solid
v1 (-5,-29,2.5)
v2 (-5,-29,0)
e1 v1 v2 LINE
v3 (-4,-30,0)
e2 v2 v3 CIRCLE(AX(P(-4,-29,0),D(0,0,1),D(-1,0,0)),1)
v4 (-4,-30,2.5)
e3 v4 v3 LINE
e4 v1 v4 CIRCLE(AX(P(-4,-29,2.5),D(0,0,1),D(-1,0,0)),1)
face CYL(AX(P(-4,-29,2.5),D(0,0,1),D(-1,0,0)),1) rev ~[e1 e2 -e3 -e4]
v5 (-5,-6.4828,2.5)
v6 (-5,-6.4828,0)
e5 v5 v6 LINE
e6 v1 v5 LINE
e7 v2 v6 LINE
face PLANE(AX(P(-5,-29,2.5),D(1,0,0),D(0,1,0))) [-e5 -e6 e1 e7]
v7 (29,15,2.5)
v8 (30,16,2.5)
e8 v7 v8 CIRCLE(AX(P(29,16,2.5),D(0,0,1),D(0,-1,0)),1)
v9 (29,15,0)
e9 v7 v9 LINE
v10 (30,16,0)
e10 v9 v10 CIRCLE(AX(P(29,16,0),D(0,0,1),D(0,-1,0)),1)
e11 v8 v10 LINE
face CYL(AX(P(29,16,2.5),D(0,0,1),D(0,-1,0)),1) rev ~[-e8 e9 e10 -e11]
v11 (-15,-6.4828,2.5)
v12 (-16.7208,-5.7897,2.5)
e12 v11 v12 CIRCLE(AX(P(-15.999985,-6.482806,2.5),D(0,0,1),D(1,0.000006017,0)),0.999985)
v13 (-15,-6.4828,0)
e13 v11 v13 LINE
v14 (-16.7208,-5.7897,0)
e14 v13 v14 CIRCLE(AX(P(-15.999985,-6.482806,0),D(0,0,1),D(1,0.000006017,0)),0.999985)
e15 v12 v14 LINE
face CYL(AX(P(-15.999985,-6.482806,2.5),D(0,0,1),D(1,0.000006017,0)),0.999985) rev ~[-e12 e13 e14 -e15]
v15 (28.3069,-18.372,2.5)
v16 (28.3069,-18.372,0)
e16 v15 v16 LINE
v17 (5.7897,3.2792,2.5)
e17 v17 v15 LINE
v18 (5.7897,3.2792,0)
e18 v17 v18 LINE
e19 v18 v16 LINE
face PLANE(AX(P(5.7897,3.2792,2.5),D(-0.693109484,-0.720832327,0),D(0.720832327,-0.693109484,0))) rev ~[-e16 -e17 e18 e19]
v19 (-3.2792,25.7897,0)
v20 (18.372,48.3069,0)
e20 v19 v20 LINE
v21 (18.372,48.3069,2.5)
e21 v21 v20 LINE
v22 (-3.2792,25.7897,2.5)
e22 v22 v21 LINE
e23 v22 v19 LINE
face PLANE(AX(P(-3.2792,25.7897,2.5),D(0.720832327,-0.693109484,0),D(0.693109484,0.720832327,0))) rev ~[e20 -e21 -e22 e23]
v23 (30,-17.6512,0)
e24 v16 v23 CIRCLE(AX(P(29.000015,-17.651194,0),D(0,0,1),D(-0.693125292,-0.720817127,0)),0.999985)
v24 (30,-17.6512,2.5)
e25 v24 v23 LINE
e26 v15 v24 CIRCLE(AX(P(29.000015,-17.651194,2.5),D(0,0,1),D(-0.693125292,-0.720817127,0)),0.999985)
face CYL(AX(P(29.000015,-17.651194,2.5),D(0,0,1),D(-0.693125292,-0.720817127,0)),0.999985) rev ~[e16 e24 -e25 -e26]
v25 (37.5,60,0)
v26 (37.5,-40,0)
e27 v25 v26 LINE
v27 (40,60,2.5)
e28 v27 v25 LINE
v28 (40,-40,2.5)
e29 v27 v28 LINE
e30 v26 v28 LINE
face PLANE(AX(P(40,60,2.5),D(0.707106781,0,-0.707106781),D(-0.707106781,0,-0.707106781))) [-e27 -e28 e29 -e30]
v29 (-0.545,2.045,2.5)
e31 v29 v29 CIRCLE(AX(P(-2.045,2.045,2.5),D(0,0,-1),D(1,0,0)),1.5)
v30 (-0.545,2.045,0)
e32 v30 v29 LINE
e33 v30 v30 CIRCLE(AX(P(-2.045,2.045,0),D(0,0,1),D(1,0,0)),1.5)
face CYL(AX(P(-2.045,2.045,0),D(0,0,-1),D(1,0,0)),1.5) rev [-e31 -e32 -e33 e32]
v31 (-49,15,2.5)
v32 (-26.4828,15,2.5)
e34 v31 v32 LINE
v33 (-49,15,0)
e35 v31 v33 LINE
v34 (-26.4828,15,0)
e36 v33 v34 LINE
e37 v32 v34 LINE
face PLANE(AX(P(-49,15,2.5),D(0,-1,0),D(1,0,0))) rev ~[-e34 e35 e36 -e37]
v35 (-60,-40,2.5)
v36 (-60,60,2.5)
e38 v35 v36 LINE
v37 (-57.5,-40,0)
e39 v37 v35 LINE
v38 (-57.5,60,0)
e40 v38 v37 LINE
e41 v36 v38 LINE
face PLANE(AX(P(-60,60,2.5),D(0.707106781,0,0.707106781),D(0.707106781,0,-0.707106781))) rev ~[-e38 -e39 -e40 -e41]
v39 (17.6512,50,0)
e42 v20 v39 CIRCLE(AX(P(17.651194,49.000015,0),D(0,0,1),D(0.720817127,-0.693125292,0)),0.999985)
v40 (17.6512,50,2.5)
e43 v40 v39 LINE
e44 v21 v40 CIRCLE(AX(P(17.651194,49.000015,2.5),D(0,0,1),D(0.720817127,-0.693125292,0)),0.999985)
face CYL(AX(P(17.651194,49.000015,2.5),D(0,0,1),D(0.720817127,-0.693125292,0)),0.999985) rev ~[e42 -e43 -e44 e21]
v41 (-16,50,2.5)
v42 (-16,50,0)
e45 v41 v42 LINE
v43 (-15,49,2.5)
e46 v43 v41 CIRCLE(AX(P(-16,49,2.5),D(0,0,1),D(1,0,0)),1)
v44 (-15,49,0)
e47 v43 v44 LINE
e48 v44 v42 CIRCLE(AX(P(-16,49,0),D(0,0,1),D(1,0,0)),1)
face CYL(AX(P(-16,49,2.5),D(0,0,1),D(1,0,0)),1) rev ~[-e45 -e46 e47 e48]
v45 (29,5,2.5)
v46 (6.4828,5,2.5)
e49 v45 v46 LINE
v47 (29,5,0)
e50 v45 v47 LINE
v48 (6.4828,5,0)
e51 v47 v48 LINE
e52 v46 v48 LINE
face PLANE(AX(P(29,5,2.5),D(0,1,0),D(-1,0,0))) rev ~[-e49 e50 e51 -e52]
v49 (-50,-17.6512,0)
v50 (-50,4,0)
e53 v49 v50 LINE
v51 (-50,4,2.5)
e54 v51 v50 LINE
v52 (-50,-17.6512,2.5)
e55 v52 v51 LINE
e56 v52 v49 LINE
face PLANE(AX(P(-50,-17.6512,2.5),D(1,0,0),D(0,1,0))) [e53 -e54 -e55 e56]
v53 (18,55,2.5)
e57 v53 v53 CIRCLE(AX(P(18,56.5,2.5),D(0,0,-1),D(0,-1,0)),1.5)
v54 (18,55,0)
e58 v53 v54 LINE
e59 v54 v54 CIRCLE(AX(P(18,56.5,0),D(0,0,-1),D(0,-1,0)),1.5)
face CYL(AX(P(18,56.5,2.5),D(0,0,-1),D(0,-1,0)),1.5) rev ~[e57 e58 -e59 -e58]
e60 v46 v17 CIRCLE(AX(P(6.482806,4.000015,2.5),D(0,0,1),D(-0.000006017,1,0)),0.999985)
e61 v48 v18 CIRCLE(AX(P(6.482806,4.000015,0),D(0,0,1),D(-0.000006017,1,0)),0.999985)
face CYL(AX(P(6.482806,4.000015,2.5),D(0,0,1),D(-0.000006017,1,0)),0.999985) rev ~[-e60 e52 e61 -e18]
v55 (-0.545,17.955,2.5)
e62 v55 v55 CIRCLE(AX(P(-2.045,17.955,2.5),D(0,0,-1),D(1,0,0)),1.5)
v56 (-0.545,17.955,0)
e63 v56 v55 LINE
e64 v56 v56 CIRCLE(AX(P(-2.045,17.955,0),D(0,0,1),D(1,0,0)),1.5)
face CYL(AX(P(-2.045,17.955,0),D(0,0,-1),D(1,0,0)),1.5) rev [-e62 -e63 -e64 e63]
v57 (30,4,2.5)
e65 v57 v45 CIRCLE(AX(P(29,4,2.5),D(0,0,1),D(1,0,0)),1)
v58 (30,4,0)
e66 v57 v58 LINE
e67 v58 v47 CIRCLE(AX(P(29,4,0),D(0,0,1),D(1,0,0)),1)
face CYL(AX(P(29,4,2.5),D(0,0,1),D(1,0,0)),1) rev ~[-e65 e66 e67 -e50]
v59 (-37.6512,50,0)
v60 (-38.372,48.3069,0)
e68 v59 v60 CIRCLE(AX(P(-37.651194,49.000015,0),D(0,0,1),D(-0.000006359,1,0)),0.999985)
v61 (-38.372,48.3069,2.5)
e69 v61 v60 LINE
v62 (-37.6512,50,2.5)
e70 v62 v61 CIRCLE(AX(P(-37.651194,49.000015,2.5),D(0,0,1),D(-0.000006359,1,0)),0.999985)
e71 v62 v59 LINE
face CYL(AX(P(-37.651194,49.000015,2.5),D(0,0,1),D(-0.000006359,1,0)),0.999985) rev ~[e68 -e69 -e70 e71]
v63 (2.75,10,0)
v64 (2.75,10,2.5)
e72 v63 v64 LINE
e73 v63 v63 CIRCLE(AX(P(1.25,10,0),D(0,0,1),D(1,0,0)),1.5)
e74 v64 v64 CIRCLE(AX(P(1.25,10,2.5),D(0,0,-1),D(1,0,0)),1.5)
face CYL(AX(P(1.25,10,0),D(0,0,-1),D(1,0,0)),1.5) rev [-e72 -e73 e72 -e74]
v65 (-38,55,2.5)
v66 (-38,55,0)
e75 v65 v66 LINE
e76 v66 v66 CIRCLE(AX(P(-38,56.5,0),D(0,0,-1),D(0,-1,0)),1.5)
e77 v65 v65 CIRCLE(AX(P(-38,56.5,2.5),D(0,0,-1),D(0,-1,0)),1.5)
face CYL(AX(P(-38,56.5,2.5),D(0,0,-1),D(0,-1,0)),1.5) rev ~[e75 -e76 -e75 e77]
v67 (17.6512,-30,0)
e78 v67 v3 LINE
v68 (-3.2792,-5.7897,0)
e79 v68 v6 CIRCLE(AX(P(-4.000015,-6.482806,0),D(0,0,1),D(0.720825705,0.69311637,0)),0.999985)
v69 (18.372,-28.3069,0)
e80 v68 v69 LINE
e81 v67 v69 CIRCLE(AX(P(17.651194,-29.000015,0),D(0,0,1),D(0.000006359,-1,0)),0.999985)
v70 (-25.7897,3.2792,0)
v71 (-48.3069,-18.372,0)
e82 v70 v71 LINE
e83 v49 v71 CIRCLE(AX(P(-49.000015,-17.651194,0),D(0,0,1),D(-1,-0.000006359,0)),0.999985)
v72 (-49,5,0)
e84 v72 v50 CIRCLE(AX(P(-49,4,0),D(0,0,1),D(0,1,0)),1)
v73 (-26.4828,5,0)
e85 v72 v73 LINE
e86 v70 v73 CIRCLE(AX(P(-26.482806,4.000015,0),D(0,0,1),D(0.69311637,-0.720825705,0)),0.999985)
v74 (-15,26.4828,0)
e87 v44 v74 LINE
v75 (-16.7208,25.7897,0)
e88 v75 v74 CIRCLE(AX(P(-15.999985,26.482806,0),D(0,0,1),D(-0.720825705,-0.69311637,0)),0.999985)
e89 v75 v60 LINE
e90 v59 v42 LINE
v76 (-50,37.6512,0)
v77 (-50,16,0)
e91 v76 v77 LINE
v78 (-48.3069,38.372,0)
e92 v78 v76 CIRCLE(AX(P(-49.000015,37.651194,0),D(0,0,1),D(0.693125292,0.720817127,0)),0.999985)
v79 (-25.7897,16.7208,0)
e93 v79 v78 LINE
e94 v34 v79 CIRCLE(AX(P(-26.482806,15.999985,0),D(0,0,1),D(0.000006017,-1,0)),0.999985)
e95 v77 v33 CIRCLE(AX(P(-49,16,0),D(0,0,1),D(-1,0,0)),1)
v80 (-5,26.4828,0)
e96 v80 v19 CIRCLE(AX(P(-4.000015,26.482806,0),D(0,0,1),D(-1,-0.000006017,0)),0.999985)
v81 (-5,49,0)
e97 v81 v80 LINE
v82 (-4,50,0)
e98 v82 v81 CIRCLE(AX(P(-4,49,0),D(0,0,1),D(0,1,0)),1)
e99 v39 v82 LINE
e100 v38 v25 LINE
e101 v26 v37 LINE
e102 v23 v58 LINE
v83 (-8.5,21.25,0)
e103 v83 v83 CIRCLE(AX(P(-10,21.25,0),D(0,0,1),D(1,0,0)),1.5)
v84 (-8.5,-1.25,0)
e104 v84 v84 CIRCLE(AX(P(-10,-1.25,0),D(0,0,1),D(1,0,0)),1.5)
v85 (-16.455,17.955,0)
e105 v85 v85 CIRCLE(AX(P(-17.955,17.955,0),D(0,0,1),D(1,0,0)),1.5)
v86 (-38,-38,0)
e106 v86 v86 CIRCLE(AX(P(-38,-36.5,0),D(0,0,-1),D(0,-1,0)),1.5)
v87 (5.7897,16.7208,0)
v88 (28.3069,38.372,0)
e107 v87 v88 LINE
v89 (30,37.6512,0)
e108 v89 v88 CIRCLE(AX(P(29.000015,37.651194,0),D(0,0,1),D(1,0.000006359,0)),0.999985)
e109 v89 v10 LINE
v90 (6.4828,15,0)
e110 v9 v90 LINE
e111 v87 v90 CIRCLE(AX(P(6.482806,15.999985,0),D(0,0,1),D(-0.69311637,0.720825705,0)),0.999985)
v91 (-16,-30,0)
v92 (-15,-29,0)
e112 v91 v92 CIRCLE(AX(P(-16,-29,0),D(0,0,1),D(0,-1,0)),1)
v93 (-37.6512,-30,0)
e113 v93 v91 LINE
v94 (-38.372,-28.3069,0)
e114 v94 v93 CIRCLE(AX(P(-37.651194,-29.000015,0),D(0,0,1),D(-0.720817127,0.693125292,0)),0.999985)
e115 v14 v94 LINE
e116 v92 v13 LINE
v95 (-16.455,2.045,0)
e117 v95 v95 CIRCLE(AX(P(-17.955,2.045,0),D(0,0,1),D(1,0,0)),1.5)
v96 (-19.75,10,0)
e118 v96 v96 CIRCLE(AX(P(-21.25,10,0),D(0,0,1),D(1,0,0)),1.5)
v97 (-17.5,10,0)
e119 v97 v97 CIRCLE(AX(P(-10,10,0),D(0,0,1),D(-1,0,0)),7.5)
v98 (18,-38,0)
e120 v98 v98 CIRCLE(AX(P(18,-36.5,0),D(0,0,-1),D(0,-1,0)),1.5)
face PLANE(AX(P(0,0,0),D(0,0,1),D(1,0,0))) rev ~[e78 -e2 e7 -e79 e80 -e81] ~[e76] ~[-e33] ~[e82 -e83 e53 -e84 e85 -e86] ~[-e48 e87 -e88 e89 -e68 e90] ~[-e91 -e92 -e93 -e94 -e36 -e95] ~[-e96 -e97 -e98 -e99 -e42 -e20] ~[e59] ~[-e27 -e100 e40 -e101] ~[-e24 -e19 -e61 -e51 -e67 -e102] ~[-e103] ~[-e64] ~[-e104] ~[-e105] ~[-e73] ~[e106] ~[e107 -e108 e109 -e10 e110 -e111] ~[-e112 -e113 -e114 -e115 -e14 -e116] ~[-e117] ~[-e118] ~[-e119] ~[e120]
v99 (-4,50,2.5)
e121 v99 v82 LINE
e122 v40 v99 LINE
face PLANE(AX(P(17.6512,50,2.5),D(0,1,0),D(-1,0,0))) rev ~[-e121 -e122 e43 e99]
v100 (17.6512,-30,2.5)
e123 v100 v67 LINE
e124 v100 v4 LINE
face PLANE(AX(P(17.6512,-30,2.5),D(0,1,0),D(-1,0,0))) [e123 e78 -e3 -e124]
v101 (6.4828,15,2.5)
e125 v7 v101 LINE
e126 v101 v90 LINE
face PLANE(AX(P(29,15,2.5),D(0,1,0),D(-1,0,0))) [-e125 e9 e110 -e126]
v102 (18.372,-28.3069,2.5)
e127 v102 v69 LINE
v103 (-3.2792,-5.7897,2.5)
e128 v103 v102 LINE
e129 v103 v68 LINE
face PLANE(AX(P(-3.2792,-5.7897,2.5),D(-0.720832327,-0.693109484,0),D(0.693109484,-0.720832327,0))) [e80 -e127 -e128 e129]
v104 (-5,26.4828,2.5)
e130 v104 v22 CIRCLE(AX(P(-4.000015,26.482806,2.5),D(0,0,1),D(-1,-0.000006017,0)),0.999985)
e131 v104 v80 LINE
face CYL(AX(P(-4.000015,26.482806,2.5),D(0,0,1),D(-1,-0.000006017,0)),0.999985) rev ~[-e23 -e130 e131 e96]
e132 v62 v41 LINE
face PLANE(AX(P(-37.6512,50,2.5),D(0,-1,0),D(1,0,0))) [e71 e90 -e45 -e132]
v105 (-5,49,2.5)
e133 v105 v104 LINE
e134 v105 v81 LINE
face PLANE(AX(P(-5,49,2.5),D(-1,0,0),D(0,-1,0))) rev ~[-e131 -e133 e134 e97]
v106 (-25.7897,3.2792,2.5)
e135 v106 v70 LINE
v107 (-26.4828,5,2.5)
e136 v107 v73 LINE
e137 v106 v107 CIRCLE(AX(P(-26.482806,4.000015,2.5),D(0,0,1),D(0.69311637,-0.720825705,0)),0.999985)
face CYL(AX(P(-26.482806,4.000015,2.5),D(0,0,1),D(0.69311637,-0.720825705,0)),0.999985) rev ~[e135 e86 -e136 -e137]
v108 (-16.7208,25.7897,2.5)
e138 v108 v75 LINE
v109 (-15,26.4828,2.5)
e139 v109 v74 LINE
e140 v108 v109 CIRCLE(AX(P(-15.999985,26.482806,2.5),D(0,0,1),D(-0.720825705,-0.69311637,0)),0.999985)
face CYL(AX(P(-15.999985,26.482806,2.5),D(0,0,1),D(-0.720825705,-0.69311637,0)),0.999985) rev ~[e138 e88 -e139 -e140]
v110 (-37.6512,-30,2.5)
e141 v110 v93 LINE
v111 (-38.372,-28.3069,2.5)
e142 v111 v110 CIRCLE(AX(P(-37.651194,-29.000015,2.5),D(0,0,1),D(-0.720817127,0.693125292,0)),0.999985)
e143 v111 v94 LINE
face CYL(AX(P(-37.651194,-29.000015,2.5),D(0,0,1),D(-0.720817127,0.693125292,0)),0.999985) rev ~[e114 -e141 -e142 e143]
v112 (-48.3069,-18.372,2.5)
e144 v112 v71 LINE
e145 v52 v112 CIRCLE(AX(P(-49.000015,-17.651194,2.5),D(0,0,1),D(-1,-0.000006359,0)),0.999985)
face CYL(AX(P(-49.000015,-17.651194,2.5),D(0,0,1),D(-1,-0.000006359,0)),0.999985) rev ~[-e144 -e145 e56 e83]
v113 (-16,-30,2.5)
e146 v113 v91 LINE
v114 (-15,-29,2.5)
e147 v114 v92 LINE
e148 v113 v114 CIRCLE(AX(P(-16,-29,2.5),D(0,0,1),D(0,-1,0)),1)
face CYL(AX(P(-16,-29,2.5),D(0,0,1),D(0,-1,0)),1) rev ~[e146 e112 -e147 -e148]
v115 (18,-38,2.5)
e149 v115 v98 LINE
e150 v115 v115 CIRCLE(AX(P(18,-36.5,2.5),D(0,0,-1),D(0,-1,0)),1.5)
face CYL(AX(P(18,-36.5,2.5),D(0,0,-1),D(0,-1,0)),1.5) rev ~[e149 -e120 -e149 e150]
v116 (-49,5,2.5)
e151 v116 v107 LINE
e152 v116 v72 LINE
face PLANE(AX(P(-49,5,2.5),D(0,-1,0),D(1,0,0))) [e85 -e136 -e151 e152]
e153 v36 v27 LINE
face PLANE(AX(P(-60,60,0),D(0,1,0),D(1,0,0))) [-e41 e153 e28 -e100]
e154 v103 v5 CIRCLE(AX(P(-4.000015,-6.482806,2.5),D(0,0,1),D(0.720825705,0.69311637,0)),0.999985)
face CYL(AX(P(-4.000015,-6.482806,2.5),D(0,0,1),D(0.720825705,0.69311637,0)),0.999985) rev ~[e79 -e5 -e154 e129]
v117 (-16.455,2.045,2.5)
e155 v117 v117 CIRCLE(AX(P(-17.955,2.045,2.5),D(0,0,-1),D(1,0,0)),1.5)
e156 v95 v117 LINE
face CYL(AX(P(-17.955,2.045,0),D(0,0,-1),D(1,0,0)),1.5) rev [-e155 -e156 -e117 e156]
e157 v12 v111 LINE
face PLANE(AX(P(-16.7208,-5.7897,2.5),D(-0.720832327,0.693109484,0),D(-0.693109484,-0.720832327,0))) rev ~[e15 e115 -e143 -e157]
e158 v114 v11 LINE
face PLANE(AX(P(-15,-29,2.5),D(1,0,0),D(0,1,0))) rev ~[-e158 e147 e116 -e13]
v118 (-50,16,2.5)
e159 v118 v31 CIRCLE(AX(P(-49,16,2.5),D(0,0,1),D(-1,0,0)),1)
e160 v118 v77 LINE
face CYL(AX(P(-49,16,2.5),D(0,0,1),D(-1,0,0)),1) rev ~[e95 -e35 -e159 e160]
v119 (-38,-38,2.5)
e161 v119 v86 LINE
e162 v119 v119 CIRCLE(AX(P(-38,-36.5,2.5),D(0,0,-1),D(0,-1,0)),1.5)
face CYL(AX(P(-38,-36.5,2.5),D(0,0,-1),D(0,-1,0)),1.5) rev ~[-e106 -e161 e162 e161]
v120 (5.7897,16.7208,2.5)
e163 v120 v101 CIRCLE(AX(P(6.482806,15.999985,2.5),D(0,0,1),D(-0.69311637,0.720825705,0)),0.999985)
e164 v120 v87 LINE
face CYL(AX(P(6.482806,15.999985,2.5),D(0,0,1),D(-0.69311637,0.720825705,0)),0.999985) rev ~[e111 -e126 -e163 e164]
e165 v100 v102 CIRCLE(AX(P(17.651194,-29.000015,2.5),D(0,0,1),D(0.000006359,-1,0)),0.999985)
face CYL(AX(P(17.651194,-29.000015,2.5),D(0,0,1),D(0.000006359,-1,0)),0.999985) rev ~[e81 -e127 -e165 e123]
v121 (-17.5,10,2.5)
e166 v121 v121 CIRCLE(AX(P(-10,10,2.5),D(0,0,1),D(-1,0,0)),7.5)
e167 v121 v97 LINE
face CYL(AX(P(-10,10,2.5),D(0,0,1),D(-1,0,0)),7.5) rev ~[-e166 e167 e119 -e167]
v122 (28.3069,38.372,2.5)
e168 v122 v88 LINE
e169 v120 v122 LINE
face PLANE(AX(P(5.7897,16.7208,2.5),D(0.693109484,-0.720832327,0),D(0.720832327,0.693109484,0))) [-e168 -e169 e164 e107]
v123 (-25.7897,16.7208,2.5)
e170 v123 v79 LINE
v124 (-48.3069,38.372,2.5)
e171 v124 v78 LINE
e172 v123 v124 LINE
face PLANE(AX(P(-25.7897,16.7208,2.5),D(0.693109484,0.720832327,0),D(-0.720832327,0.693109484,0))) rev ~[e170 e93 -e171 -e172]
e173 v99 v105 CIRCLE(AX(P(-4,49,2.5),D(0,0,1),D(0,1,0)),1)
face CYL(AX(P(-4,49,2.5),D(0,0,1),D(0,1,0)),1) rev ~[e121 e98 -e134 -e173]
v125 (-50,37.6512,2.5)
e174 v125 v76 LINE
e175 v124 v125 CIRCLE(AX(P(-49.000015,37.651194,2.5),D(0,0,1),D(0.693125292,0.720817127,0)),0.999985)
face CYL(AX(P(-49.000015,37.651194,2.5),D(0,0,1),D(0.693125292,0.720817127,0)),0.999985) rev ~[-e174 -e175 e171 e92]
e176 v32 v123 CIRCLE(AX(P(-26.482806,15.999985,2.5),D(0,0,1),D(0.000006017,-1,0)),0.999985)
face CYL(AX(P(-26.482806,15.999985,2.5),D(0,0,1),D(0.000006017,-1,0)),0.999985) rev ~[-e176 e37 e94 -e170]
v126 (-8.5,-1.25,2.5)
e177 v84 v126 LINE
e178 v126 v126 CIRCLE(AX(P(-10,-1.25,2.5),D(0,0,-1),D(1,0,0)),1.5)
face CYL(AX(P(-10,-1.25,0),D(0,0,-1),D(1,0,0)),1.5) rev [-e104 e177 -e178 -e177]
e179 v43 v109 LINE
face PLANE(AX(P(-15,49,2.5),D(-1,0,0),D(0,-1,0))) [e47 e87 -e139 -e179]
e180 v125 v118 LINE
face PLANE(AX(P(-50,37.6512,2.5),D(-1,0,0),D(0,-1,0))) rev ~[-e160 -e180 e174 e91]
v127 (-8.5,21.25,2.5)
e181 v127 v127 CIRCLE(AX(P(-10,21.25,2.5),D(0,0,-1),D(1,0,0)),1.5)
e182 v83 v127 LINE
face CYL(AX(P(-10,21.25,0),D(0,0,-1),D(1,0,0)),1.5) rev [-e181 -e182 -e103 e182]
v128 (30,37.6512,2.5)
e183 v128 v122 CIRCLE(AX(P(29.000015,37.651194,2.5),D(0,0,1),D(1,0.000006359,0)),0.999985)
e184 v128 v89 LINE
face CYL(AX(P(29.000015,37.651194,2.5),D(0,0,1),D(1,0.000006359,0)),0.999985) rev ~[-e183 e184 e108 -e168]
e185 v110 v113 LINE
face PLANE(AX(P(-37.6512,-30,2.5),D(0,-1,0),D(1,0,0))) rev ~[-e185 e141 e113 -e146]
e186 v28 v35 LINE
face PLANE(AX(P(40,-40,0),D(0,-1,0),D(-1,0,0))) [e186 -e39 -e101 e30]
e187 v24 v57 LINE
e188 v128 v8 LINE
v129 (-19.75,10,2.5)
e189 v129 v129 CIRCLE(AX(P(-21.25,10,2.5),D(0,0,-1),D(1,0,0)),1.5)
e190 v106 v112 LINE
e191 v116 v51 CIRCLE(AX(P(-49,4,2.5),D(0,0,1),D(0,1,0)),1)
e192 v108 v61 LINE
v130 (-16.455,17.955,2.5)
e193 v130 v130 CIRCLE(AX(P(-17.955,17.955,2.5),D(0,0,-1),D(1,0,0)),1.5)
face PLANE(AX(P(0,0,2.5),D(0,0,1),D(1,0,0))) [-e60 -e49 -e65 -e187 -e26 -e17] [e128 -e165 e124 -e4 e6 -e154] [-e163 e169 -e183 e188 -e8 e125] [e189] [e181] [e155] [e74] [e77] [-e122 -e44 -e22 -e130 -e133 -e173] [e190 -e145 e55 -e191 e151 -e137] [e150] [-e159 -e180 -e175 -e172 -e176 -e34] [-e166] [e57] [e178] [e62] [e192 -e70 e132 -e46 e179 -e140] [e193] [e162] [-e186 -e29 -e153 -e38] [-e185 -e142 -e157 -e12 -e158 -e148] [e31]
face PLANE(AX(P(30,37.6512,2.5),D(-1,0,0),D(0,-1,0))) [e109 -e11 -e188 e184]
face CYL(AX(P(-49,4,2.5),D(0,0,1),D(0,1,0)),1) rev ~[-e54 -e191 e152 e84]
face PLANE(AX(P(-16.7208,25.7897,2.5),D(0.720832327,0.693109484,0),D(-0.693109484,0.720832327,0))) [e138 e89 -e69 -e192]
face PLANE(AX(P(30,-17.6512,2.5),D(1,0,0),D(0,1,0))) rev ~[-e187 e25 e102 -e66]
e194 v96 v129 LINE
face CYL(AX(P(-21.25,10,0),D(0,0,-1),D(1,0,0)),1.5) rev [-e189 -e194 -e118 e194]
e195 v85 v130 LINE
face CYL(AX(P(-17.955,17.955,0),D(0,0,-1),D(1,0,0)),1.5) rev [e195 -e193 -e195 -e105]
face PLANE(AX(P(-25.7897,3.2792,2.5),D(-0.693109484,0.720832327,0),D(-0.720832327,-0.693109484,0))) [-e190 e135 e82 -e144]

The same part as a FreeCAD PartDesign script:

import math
import FreeCAD as App
import Part
import Sketcher

V = App.Vector


def add_polygon(sketch, points):
    """Adds a closed chain of lines whose ends are joined by coincident constraints."""
    first, n = sketch.GeometryCount, len(points)
    for a, b in zip(points, points[1:] + points[:1]):
        sketch.addGeometry(Part.LineSegment(App.Vector(*a, 0), App.Vector(*b, 0)), False)
    for i in range(n):
        sketch.addConstraint(Sketcher.Constraint("Coincident", first + i, 2, first + (i + 1) % n, 1))

doc = App.newDocument("Part")
body = doc.addObject("PartDesign::Body", "Body")

sketch1 = body.newObject("Sketcher::SketchObject", "Sketch")
sketch1.AttachmentSupport = (doc.getObject("XY_Plane"), [""])
sketch1.MapMode = "FlatFace"
add_polygon(sketch1, [(-60, -40), (40, -40), (40, 60), (-60, 60)])
sketch1.addConstraint(Sketcher.Constraint("Horizontal", 0))
sketch1.addConstraint(Sketcher.Constraint("Vertical", 1))
sketch1.addConstraint(Sketcher.Constraint("Horizontal", 2))
sketch1.addConstraint(Sketcher.Constraint("Vertical", 3))
sketch1.addConstraint(Sketcher.Constraint("Equal", 2, 1))
sketch1.addConstraint(Sketcher.Constraint("DistanceX", 0, 1, 0, 2, 100.0))
sketch1.addConstraint(Sketcher.Constraint("DistanceX", -1, 1, 0, 2, 40.0))
sketch1.addConstraint(Sketcher.Constraint("DistanceY", 0, 2, -1, 1, 40.0))
pad1 = body.newObject("PartDesign::Pad", "Pad")
pad1.Profile = sketch1
pad1.Length = 2.5

sketch2 = body.newObject("Sketcher::SketchObject", "Sketch001")
sketch2.AttachmentSupport = (doc.getObject("XY_Plane"), [""])
sketch2.MapMode = "FlatFace"
sketch2.AttachmentOffset = App.Placement(V(0, 0, 2.5), App.Rotation())
sketch2.addGeometry(Part.Circle(V(-38, 56.5, 0), V(0, 0, 1), 1.5), False)
sketch2.addGeometry(Part.Circle(V(18, 56.5, 0), V(0, 0, 1), 1.5), False)
sketch2.addGeometry(Part.Circle(V(18, -36.5, 0), V(0, 0, 1), 1.5), False)
sketch2.addGeometry(Part.Circle(V(-38, -36.5, 0), V(0, 0, 1), 1.5), False)
sketch2.addConstraint(Sketcher.Constraint("Equal", 0, 1))
sketch2.addConstraint(Sketcher.Constraint("Equal", 1, 2))
sketch2.addConstraint(Sketcher.Constraint("Equal", 2, 3))
sketch2.addConstraint(Sketcher.Constraint("Horizontal", 0, 3, 1, 3))
sketch2.addConstraint(Sketcher.Constraint("Horizontal", 2, 3, 3, 3))
sketch2.addConstraint(Sketcher.Constraint("Vertical", 1, 3, 2, 3))
sketch2.addConstraint(Sketcher.Constraint("Vertical", 0, 3, 3, 3))
sketch2.addConstraint(Sketcher.Constraint("Diameter", 0, 3.0))
sketch2.addConstraint(Sketcher.Constraint("DistanceX", 0, 3, -1, 1, 38.0))
sketch2.addConstraint(Sketcher.Constraint("DistanceX", -1, 1, 1, 3, 18.0))
sketch2.addConstraint(Sketcher.Constraint("DistanceY", 2, 3, 1, 3, 93.0))
sketch2.addConstraint(Sketcher.Constraint("DistanceY", -1, 1, 0, 3, 56.5))
doc.recompute()
hole = body.newObject("PartDesign::Hole", "Hole")
hole.Profile = sketch2
hole.ThreadType = "None"
hole.Diameter = 3
hole.DepthType = "Dimension"
hole.Depth = 10
hole.DrillPoint = "Angled"
hole.DrillPointAngle = 118

sketch3 = body.newObject("Sketcher::SketchObject", "Sketch002")
sketch3.AttachmentSupport = (doc.getObject("XY_Plane"), [""])
sketch3.MapMode = "FlatFace"
sketch3.AttachmentOffset = App.Placement(V(0, 0, 2.5), App.Rotation())
sketch3.addGeometry(Part.Circle(V(-10, 10, 0), V(0, 0, 1), 8), False)
sketch3.addConstraint(Sketcher.Constraint("Diameter", 0, 15.0))
sketch3.addConstraint(Sketcher.Constraint("DistanceX", 0, 3, -1, 1, 10.0))
sketch3.addConstraint(Sketcher.Constraint("DistanceY", -1, 1, 0, 3, 10.0))
pocket1 = body.newObject("PartDesign::Pocket", "Pocket")
pocket1.Profile = sketch3
pocket1.Length = 2.5

sketch4 = body.newObject("Sketcher::SketchObject", "Sketch003")
sketch4.AttachmentSupport = (doc.getObject("XY_Plane"), [""])
sketch4.MapMode = "FlatFace"
sketch4.addGeometry(Part.Circle(V(-10, 21.2, 0), V(0, 0, 1), 1.5), False)
sketch4.addGeometry(Part.Circle(V(-2, 18, 0), V(0, 0, 1), 1.5), False)
sketch4.addGeometry(Part.Circle(V(1.2, 10, 0), V(0, 0, 1), 1.5), False)
sketch4.addGeometry(Part.Circle(V(-2, 2, 0), V(0, 0, 1), 1.5), False)
sketch4.addGeometry(Part.Circle(V(-10, -1.2, 0), V(0, 0, 1), 1.5), False)
sketch4.addGeometry(Part.Circle(V(-18, 2, 0), V(0, 0, 1), 1.5), False)
sketch4.addGeometry(Part.Circle(V(-21.2, 10, 0), V(0, 0, 1), 1.5), False)
sketch4.addGeometry(Part.Circle(V(-18, 18, 0), V(0, 0, 1), 1.5), False)
sketch4.addConstraint(Sketcher.Constraint("Equal", 0, 1))
sketch4.addConstraint(Sketcher.Constraint("Equal", 1, 2))
sketch4.addConstraint(Sketcher.Constraint("Equal", 2, 3))
sketch4.addConstraint(Sketcher.Constraint("Equal", 3, 4))
sketch4.addConstraint(Sketcher.Constraint("Equal", 4, 5))
sketch4.addConstraint(Sketcher.Constraint("Equal", 5, 6))
sketch4.addConstraint(Sketcher.Constraint("Equal", 6, 7))
sketch4.addConstraint(Sketcher.Constraint("Horizontal", 3, 3, 5, 3))
sketch4.addConstraint(Sketcher.Constraint("Horizontal", 2, 3, 6, 3))
sketch4.addConstraint(Sketcher.Constraint("Horizontal", 1, 3, 7, 3))
sketch4.addConstraint(Sketcher.Constraint("Vertical", 1, 3, 3, 3))
sketch4.addConstraint(Sketcher.Constraint("Vertical", 0, 3, 4, 3))
sketch4.addConstraint(Sketcher.Constraint("Vertical", 5, 3, 7, 3))
sketch4.addConstraint(Sketcher.Constraint("Diameter", 0, 3.0))
sketch4.addConstraint(Sketcher.Constraint("DistanceX", 0, 3, 2, 3, 11.25))
sketch4.addConstraint(Sketcher.Constraint("DistanceY", 2, 3, 0, 3, 11.25))
sketch4.addConstraint(Sketcher.Constraint("DistanceY", 4, 3, 2, 3, 11.25))
sketch4.addConstraint(Sketcher.Constraint("DistanceX", 6, 3, 0, 3, 11.25))
sketch4.addConstraint(Sketcher.Constraint("DistanceX", 0, 3, -1, 1, 10.0))
sketch4.addConstraint(Sketcher.Constraint("DistanceY", -1, 1, 2, 3, 10.0))
sketch4.addConstraint(Sketcher.Constraint("DistanceY", 3, 3, 1, 3, 15.91))
sketch4.addConstraint(Sketcher.Constraint("DistanceX", 5, 3, 3, 3, 15.91))
sketch4.addConstraint(Sketcher.Constraint("DistanceX", 1, 3, -1, 1, 2.045))
sketch4.addConstraint(Sketcher.Constraint("DistanceY", -1, 1, 1, 3, 17.955))
pocket2 = body.newObject("PartDesign::Pocket", "Pocket001")
pocket2.Profile = sketch4
pocket2.Length = 9
pocket2.Reversed = True

sketch5 = body.newObject("Sketcher::SketchObject", "Sketch004")
sketch5.AttachmentSupport = (doc.getObject("XY_Plane"), [""])
sketch5.MapMode = "FlatFace"
sketch5.AttachmentOffset = App.Placement(V(0, 0, 2.5), App.Rotation())
sketch5.addGeometry(Part.LineSegment(V(-4, -30, 0), V(17.7, -30, 0)), False)
sketch5.addGeometry(Part.ArcOfCircle(Part.Circle(V(17.7, -29, 0), V(0, 0, 1), 1), math.radians(-90), math.radians(44)), False)
sketch5.addGeometry(Part.LineSegment(V(18.4, -28.3, 0), V(-3.3, -5.8, 0)), False)
sketch5.addGeometry(Part.ArcOfCircle(Part.Circle(V(-4, -6.5, 0), V(0, 0, 1), 1), math.radians(44), math.radians(180)), False)
sketch5.addGeometry(Part.LineSegment(V(-5, -6.5, 0), V(-5, -29, 0)), False)
sketch5.addGeometry(Part.ArcOfCircle(Part.Circle(V(-4, -29, 0), V(0, 0, 1), 1), math.radians(180), math.radians(270)), False)
sketch5.addGeometry(Part.LineSegment(V(29, 5, 0), V(6.5, 5, 0)), False)
sketch5.addGeometry(Part.ArcOfCircle(Part.Circle(V(6.5, 4, 0), V(0, 0, 1), 1), math.radians(90), math.radians(226)), False)
sketch5.addGeometry(Part.LineSegment(V(5.8, 3.3, 0), V(28.3, -18.4, 0)), False)
sketch5.addGeometry(Part.ArcOfCircle(Part.Circle(V(29, -17.7, 0), V(0, 0, 1), 1), math.radians(-134), math.radians(0)), False)
sketch5.addGeometry(Part.LineSegment(V(30, -17.7, 0), V(30, 4, 0)), False)
sketch5.addGeometry(Part.ArcOfCircle(Part.Circle(V(29, 4, 0), V(0, 0, 1), 1), math.radians(0), math.radians(90)), False)
sketch5.addGeometry(Part.LineSegment(V(6.5, 15, 0), V(29, 15, 0)), False)
sketch5.addGeometry(Part.ArcOfCircle(Part.Circle(V(29, 16, 0), V(0, 0, 1), 1), math.radians(-90), math.radians(0)), False)
sketch5.addGeometry(Part.LineSegment(V(30, 16, 0), V(30, 37.7, 0)), False)
sketch5.addGeometry(Part.ArcOfCircle(Part.Circle(V(29, 37.7, 0), V(0, 0, 1), 1), math.radians(0), math.radians(134)), False)
sketch5.addGeometry(Part.LineSegment(V(28.3, 38.4, 0), V(5.8, 16.7, 0)), False)
sketch5.addGeometry(Part.ArcOfCircle(Part.Circle(V(6.5, 16, 0), V(0, 0, 1), 1), math.radians(134), math.radians(270)), False)
sketch5.addGeometry(Part.ArcOfCircle(Part.Circle(V(-4, 49, 0), V(0, 0, 1), 1), math.radians(90), math.radians(180)), False)
sketch5.addGeometry(Part.LineSegment(V(-5, 49, 0), V(-5, 26.5, 0)), False)
sketch5.addGeometry(Part.ArcOfCircle(Part.Circle(V(-4, 26.5, 0), V(0, 0, 1), 1), math.radians(180), math.radians(316)), False)
sketch5.addGeometry(Part.LineSegment(V(-3.3, 25.8, 0), V(18.4, 48.3, 0)), False)
sketch5.addGeometry(Part.ArcOfCircle(Part.Circle(V(17.7, 49, 0), V(0, 0, 1), 1), math.radians(-44), math.radians(90)), False)
sketch5.addGeometry(Part.LineSegment(V(17.7, 50, 0), V(-4, 50, 0)), False)
sketch5.addGeometry(Part.LineSegment(V(-38.4, 48.3, 0), V(-16.7, 25.8, 0)), False)
sketch5.addGeometry(Part.ArcOfCircle(Part.Circle(V(-16, 26.5, 0), V(0, 0, 1), 1), math.radians(-136), math.radians(0)), False)
sketch5.addGeometry(Part.LineSegment(V(-15, 26.5, 0), V(-15, 49, 0)), False)
sketch5.addGeometry(Part.ArcOfCircle(Part.Circle(V(-16, 49, 0), V(0, 0, 1), 1), math.radians(0), math.radians(90)), False)
sketch5.addGeometry(Part.LineSegment(V(-16, 50, 0), V(-37.7, 50, 0)), False)
sketch5.addGeometry(Part.ArcOfCircle(Part.Circle(V(-37.7, 49, 0), V(0, 0, 1), 1), math.radians(90), math.radians(224)), False)
sketch5.addGeometry(Part.LineSegment(V(-49, 15, 0), V(-26.5, 15, 0)), False)
sketch5.addGeometry(Part.ArcOfCircle(Part.Circle(V(-26.5, 16, 0), V(0, 0, 1), 1), math.radians(-90), math.radians(46)), False)
sketch5.addGeometry(Part.LineSegment(V(-25.8, 16.7, 0), V(-48.3, 38.4, 0)), False)
sketch5.addGeometry(Part.ArcOfCircle(Part.Circle(V(-49, 37.7, 0), V(0, 0, 1), 1), math.radians(46), math.radians(180)), False)
sketch5.addGeometry(Part.LineSegment(V(-50, 37.7, 0), V(-50, 16, 0)), False)
sketch5.addGeometry(Part.ArcOfCircle(Part.Circle(V(-49, 16, 0), V(0, 0, 1), 1), math.radians(180), math.radians(270)), False)
sketch5.addGeometry(Part.LineSegment(V(-48.3, -18.4, 0), V(-25.8, 3.3, 0)), False)
sketch5.addGeometry(Part.ArcOfCircle(Part.Circle(V(-26.5, 4, 0), V(0, 0, 1), 1), math.radians(-46), math.radians(90)), False)
sketch5.addGeometry(Part.LineSegment(V(-26.5, 5, 0), V(-49, 5, 0)), False)
sketch5.addGeometry(Part.ArcOfCircle(Part.Circle(V(-49, 4, 0), V(0, 0, 1), 1), math.radians(90), math.radians(180)), False)
sketch5.addGeometry(Part.LineSegment(V(-50, 4, 0), V(-50, -17.7, 0)), False)
sketch5.addGeometry(Part.ArcOfCircle(Part.Circle(V(-49, -17.7, 0), V(0, 0, 1), 1), math.radians(180), math.radians(314)), False)
sketch5.addGeometry(Part.ArcOfCircle(Part.Circle(V(-37.7, -29, 0), V(0, 0, 1), 1), math.radians(136), math.radians(270)), False)
sketch5.addGeometry(Part.LineSegment(V(-37.7, -30, 0), V(-16, -30, 0)), False)
sketch5.addGeometry(Part.ArcOfCircle(Part.Circle(V(-16, -29, 0), V(0, 0, 1), 1), math.radians(-90), math.radians(0)), False)
sketch5.addGeometry(Part.LineSegment(V(-15, -29, 0), V(-15, -6.5, 0)), False)
sketch5.addGeometry(Part.ArcOfCircle(Part.Circle(V(-16, -6.5, 0), V(0, 0, 1), 1), math.radians(0), math.radians(136)), False)
sketch5.addGeometry(Part.LineSegment(V(-16.7, -5.8, 0), V(-38.4, -28.3, 0)), False)
sketch5.addConstraint(Sketcher.Constraint("Tangent", 0, 2, 1, 1))
sketch5.addConstraint(Sketcher.Constraint("Tangent", 1, 2, 2, 1))
sketch5.addConstraint(Sketcher.Constraint("Tangent", 2, 2, 3, 1))
sketch5.addConstraint(Sketcher.Constraint("Tangent", 3, 2, 4, 1))
sketch5.addConstraint(Sketcher.Constraint("Tangent", 4, 2, 5, 1))
sketch5.addConstraint(Sketcher.Constraint("Tangent", 5, 2, 0, 1))
sketch5.addConstraint(Sketcher.Constraint("Tangent", 6, 2, 7, 1))
sketch5.addConstraint(Sketcher.Constraint("Tangent", 7, 2, 8, 1))
sketch5.addConstraint(Sketcher.Constraint("Tangent", 8, 2, 9, 1))
sketch5.addConstraint(Sketcher.Constraint("Tangent", 9, 2, 10, 1))
sketch5.addConstraint(Sketcher.Constraint("Tangent", 10, 2, 11, 1))
sketch5.addConstraint(Sketcher.Constraint("Tangent", 11, 2, 6, 1))
sketch5.addConstraint(Sketcher.Constraint("Tangent", 12, 2, 13, 1))
sketch5.addConstraint(Sketcher.Constraint("Tangent", 13, 2, 14, 1))
sketch5.addConstraint(Sketcher.Constraint("Tangent", 14, 2, 15, 1))
sketch5.addConstraint(Sketcher.Constraint("Tangent", 15, 2, 16, 1))
sketch5.addConstraint(Sketcher.Constraint("Tangent", 16, 2, 17, 1))
sketch5.addConstraint(Sketcher.Constraint("Tangent", 17, 2, 12, 1))
sketch5.addConstraint(Sketcher.Constraint("Tangent", 18, 2, 19, 1))
sketch5.addConstraint(Sketcher.Constraint("Tangent", 19, 2, 20, 1))
sketch5.addConstraint(Sketcher.Constraint("Tangent", 20, 2, 21, 1))
sketch5.addConstraint(Sketcher.Constraint("Tangent", 21, 2, 22, 1))
sketch5.addConstraint(Sketcher.Constraint("Tangent", 22, 2, 23, 1))
sketch5.addConstraint(Sketcher.Constraint("Tangent", 23, 2, 18, 1))
sketch5.addConstraint(Sketcher.Constraint("Tangent", 24, 2, 25, 1))
sketch5.addConstraint(Sketcher.Constraint("Tangent", 25, 2, 26, 1))
sketch5.addConstraint(Sketcher.Constraint("Tangent", 26, 2, 27, 1))
sketch5.addConstraint(Sketcher.Constraint("Tangent", 27, 2, 28, 1))
sketch5.addConstraint(Sketcher.Constraint("Tangent", 28, 2, 29, 1))
sketch5.addConstraint(Sketcher.Constraint("Tangent", 29, 2, 24, 1))
sketch5.addConstraint(Sketcher.Constraint("Tangent", 30, 2, 31, 1))
sketch5.addConstraint(Sketcher.Constraint("Tangent", 31, 2, 32, 1))
sketch5.addConstraint(Sketcher.Constraint("Tangent", 32, 2, 33, 1))
sketch5.addConstraint(Sketcher.Constraint("Tangent", 33, 2, 34, 1))
sketch5.addConstraint(Sketcher.Constraint("Tangent", 34, 2, 35, 1))
sketch5.addConstraint(Sketcher.Constraint("Tangent", 35, 2, 30, 1))
sketch5.addConstraint(Sketcher.Constraint("Tangent", 36, 2, 37, 1))
sketch5.addConstraint(Sketcher.Constraint("Tangent", 37, 2, 38, 1))
sketch5.addConstraint(Sketcher.Constraint("Tangent", 38, 2, 39, 1))
sketch5.addConstraint(Sketcher.Constraint("Tangent", 39, 2, 40, 1))
sketch5.addConstraint(Sketcher.Constraint("Tangent", 40, 2, 41, 1))
sketch5.addConstraint(Sketcher.Constraint("Tangent", 41, 2, 36, 1))
sketch5.addConstraint(Sketcher.Constraint("Tangent", 42, 2, 43, 1))
sketch5.addConstraint(Sketcher.Constraint("Tangent", 43, 2, 44, 1))
sketch5.addConstraint(Sketcher.Constraint("Tangent", 44, 2, 45, 1))
sketch5.addConstraint(Sketcher.Constraint("Tangent", 45, 2, 46, 1))
sketch5.addConstraint(Sketcher.Constraint("Tangent", 46, 2, 47, 1))
sketch5.addConstraint(Sketcher.Constraint("Tangent", 47, 2, 42, 1))
sketch5.addConstraint(Sketcher.Constraint("Horizontal", 0))
sketch5.addConstraint(Sketcher.Constraint("Vertical", 4))
sketch5.addConstraint(Sketcher.Constraint("Horizontal", 6))
sketch5.addConstraint(Sketcher.Constraint("Vertical", 10))
sketch5.addConstraint(Sketcher.Constraint("Horizontal", 12))
sketch5.addConstraint(Sketcher.Constraint("Vertical", 14))
sketch5.addConstraint(Sketcher.Constraint("Vertical", 19))
sketch5.addConstraint(Sketcher.Constraint("Horizontal", 23))
sketch5.addConstraint(Sketcher.Constraint("Vertical", 26))
sketch5.addConstraint(Sketcher.Constraint("Horizontal", 28))
sketch5.addConstraint(Sketcher.Constraint("Horizontal", 30))
sketch5.addConstraint(Sketcher.Constraint("Vertical", 34))
sketch5.addConstraint(Sketcher.Constraint("Horizontal", 38))
sketch5.addConstraint(Sketcher.Constraint("Vertical", 40))
sketch5.addConstraint(Sketcher.Constraint("Horizontal", 43))
sketch5.addConstraint(Sketcher.Constraint("Vertical", 45))
sketch5.addConstraint(Sketcher.Constraint("Equal", 1, 3))
sketch5.addConstraint(Sketcher.Constraint("Equal", 3, 5))
sketch5.addConstraint(Sketcher.Constraint("Equal", 5, 7))
sketch5.addConstraint(Sketcher.Constraint("Equal", 7, 9))
sketch5.addConstraint(Sketcher.Constraint("Equal", 9, 11))
sketch5.addConstraint(Sketcher.Constraint("Equal", 11, 13))
sketch5.addConstraint(Sketcher.Constraint("Equal", 13, 15))
sketch5.addConstraint(Sketcher.Constraint("Equal", 15, 17))
sketch5.addConstraint(Sketcher.Constraint("Equal", 17, 18))
sketch5.addConstraint(Sketcher.Constraint("Equal", 18, 20))
sketch5.addConstraint(Sketcher.Constraint("Equal", 20, 22))
sketch5.addConstraint(Sketcher.Constraint("Equal", 22, 25))
sketch5.addConstraint(Sketcher.Constraint("Equal", 25, 27))
sketch5.addConstraint(Sketcher.Constraint("Equal", 27, 29))
sketch5.addConstraint(Sketcher.Constraint("Equal", 29, 31))
sketch5.addConstraint(Sketcher.Constraint("Equal", 31, 33))
sketch5.addConstraint(Sketcher.Constraint("Equal", 33, 35))
sketch5.addConstraint(Sketcher.Constraint("Equal", 35, 37))
sketch5.addConstraint(Sketcher.Constraint("Equal", 37, 39))
sketch5.addConstraint(Sketcher.Constraint("Equal", 39, 41))
sketch5.addConstraint(Sketcher.Constraint("Equal", 41, 42))
sketch5.addConstraint(Sketcher.Constraint("Equal", 42, 44))
sketch5.addConstraint(Sketcher.Constraint("Equal", 44, 46))
sketch5.addConstraint(Sketcher.Constraint("Perpendicular", 2, 16))
sketch5.addConstraint(Sketcher.Constraint("Perpendicular", 8, 21))
sketch5.addConstraint(Sketcher.Constraint("Perpendicular", 16, 24))
sketch5.addConstraint(Sketcher.Constraint("Perpendicular", 21, 32))
sketch5.addConstraint(Sketcher.Constraint("Perpendicular", 24, 36))
sketch5.addConstraint(Sketcher.Constraint("Perpendicular", 32, 47))
sketch5.addConstraint(Sketcher.Constraint("Horizontal", 20, 3, 25, 3))
sketch5.addConstraint(Sketcher.Constraint("Horizontal", 22, 3, 27, 3))
sketch5.addConstraint(Sketcher.Constraint("Horizontal", 17, 3, 31, 3))
sketch5.addConstraint(Sketcher.Constraint("Horizontal", 15, 3, 33, 3))
sketch5.addConstraint(Sketcher.Constraint("Horizontal", 11, 3, 37, 3))
sketch5.addConstraint(Sketcher.Constraint("Horizontal", 9, 3, 41, 3))
sketch5.addConstraint(Sketcher.Constraint("Horizontal", 5, 3, 42, 3))
sketch5.addConstraint(Sketcher.Constraint("Horizontal", 3, 3, 46, 3))
sketch5.addConstraint(Sketcher.Constraint("Horizontal", 20, 2, 24, 2))
sketch5.addConstraint(Sketcher.Constraint("Vertical", 11, 3, 13, 3))
sketch5.addConstraint(Sketcher.Constraint("Vertical", 7, 3, 17, 3))
sketch5.addConstraint(Sketcher.Constraint("Vertical", 5, 3, 18, 3))
sketch5.addConstraint(Sketcher.Constraint("Vertical", 1, 3, 22, 3))
sketch5.addConstraint(Sketcher.Constraint("Vertical", 31, 3, 37, 3))
sketch5.addConstraint(Sketcher.Constraint("Vertical", 29, 3, 42, 3))
sketch5.addConstraint(Sketcher.Constraint("Equal", 38, 4))
sketch5.addConstraint(Sketcher.Constraint("Radius", 1, 1.0))
sketch5.addConstraint(Sketcher.Constraint("DistanceY", 1, 3, -1, 1, 29.0))
sketch5.addConstraint(Sketcher.Constraint("DistanceX", 3, 3, -1, 1, 4.0))
sketch5.addConstraint(Sketcher.Constraint("DistanceY", -1, 1, 7, 3, 4.0))
sketch5.addConstraint(Sketcher.Constraint("DistanceX", -1, 1, 9, 3, 29.0))
sketch5.addConstraint(Sketcher.Constraint("DistanceY", -1, 1, 13, 3, 16.0))
sketch5.addConstraint(Sketcher.Constraint("DistanceY", -1, 1, 18, 3, 49.0))
sketch5.addConstraint(Sketcher.Constraint("DistanceX", 25, 3, -1, 1, 16.0))
sketch5.addConstraint(Sketcher.Constraint("DistanceX", 33, 3, -1, 1, 49.0))
sketch5.addConstraint(Sketcher.Constraint("DistanceX", 0, 1, 0, 2, 21.6512))
sketch5.addConstraint(Sketcher.Constraint("DistanceX", 6, 2, 6, 1, 22.5172))
pocket3 = body.newObject("PartDesign::Pocket", "Pocket002")
pocket3.Profile = sketch5
pocket3.Length = 5

sketch6 = body.newObject("Sketcher::SketchObject", "Sketch005")
sketch6.AttachmentSupport = (doc.getObject("XZ_Plane"), [""])
sketch6.MapMode = "FlatFace"
sketch6.AttachmentOffset = App.Placement(V(0, 0, -60), App.Rotation())
add_polygon(sketch6, [(40, 2.5), (40, 0), (37.5, 0)])
sketch6.addConstraint(Sketcher.Constraint("Vertical", 0))
sketch6.addConstraint(Sketcher.Constraint("Horizontal", 1))
sketch6.addConstraint(Sketcher.Constraint("PointOnObject", 0, 2, -1))
sketch6.addConstraint(Sketcher.Constraint("Equal", 1, 0))
sketch6.addConstraint(Sketcher.Constraint("DistanceX", 1, 2, 1, 1, 2.5))
sketch6.addConstraint(Sketcher.Constraint("DistanceX", -1, 1, 0, 2, 40.0))
pocket4 = body.newObject("PartDesign::Pocket", "Pocket003")
pocket4.Profile = sketch6
pocket4.Length = 104
pocket4.Reversed = True

sketch7 = body.newObject("Sketcher::SketchObject", "Sketch006")
sketch7.AttachmentSupport = (doc.getObject("XZ_Plane"), [""])
sketch7.MapMode = "FlatFace"
sketch7.AttachmentOffset = App.Placement(V(0, 0, -60), App.Rotation())
add_polygon(sketch7, [(-60, 0), (-60, 2.5), (-57.5, 0)])
sketch7.addConstraint(Sketcher.Constraint("Vertical", 0))
sketch7.addConstraint(Sketcher.Constraint("Horizontal", 2))
sketch7.addConstraint(Sketcher.Constraint("PointOnObject", 1, 2, -1))
sketch7.addConstraint(Sketcher.Constraint("Equal", 2, 0))
sketch7.addConstraint(Sketcher.Constraint("DistanceX", 2, 2, 2, 1, 2.5))
sketch7.addConstraint(Sketcher.Constraint("DistanceX", 0, 2, -1, 1, 60.0))
pocket5 = body.newObject("PartDesign::Pocket", "Pocket004")
pocket5.Profile = sketch7
pocket5.Length = 105
pocket5.Reversed = True

doc.recompute()
